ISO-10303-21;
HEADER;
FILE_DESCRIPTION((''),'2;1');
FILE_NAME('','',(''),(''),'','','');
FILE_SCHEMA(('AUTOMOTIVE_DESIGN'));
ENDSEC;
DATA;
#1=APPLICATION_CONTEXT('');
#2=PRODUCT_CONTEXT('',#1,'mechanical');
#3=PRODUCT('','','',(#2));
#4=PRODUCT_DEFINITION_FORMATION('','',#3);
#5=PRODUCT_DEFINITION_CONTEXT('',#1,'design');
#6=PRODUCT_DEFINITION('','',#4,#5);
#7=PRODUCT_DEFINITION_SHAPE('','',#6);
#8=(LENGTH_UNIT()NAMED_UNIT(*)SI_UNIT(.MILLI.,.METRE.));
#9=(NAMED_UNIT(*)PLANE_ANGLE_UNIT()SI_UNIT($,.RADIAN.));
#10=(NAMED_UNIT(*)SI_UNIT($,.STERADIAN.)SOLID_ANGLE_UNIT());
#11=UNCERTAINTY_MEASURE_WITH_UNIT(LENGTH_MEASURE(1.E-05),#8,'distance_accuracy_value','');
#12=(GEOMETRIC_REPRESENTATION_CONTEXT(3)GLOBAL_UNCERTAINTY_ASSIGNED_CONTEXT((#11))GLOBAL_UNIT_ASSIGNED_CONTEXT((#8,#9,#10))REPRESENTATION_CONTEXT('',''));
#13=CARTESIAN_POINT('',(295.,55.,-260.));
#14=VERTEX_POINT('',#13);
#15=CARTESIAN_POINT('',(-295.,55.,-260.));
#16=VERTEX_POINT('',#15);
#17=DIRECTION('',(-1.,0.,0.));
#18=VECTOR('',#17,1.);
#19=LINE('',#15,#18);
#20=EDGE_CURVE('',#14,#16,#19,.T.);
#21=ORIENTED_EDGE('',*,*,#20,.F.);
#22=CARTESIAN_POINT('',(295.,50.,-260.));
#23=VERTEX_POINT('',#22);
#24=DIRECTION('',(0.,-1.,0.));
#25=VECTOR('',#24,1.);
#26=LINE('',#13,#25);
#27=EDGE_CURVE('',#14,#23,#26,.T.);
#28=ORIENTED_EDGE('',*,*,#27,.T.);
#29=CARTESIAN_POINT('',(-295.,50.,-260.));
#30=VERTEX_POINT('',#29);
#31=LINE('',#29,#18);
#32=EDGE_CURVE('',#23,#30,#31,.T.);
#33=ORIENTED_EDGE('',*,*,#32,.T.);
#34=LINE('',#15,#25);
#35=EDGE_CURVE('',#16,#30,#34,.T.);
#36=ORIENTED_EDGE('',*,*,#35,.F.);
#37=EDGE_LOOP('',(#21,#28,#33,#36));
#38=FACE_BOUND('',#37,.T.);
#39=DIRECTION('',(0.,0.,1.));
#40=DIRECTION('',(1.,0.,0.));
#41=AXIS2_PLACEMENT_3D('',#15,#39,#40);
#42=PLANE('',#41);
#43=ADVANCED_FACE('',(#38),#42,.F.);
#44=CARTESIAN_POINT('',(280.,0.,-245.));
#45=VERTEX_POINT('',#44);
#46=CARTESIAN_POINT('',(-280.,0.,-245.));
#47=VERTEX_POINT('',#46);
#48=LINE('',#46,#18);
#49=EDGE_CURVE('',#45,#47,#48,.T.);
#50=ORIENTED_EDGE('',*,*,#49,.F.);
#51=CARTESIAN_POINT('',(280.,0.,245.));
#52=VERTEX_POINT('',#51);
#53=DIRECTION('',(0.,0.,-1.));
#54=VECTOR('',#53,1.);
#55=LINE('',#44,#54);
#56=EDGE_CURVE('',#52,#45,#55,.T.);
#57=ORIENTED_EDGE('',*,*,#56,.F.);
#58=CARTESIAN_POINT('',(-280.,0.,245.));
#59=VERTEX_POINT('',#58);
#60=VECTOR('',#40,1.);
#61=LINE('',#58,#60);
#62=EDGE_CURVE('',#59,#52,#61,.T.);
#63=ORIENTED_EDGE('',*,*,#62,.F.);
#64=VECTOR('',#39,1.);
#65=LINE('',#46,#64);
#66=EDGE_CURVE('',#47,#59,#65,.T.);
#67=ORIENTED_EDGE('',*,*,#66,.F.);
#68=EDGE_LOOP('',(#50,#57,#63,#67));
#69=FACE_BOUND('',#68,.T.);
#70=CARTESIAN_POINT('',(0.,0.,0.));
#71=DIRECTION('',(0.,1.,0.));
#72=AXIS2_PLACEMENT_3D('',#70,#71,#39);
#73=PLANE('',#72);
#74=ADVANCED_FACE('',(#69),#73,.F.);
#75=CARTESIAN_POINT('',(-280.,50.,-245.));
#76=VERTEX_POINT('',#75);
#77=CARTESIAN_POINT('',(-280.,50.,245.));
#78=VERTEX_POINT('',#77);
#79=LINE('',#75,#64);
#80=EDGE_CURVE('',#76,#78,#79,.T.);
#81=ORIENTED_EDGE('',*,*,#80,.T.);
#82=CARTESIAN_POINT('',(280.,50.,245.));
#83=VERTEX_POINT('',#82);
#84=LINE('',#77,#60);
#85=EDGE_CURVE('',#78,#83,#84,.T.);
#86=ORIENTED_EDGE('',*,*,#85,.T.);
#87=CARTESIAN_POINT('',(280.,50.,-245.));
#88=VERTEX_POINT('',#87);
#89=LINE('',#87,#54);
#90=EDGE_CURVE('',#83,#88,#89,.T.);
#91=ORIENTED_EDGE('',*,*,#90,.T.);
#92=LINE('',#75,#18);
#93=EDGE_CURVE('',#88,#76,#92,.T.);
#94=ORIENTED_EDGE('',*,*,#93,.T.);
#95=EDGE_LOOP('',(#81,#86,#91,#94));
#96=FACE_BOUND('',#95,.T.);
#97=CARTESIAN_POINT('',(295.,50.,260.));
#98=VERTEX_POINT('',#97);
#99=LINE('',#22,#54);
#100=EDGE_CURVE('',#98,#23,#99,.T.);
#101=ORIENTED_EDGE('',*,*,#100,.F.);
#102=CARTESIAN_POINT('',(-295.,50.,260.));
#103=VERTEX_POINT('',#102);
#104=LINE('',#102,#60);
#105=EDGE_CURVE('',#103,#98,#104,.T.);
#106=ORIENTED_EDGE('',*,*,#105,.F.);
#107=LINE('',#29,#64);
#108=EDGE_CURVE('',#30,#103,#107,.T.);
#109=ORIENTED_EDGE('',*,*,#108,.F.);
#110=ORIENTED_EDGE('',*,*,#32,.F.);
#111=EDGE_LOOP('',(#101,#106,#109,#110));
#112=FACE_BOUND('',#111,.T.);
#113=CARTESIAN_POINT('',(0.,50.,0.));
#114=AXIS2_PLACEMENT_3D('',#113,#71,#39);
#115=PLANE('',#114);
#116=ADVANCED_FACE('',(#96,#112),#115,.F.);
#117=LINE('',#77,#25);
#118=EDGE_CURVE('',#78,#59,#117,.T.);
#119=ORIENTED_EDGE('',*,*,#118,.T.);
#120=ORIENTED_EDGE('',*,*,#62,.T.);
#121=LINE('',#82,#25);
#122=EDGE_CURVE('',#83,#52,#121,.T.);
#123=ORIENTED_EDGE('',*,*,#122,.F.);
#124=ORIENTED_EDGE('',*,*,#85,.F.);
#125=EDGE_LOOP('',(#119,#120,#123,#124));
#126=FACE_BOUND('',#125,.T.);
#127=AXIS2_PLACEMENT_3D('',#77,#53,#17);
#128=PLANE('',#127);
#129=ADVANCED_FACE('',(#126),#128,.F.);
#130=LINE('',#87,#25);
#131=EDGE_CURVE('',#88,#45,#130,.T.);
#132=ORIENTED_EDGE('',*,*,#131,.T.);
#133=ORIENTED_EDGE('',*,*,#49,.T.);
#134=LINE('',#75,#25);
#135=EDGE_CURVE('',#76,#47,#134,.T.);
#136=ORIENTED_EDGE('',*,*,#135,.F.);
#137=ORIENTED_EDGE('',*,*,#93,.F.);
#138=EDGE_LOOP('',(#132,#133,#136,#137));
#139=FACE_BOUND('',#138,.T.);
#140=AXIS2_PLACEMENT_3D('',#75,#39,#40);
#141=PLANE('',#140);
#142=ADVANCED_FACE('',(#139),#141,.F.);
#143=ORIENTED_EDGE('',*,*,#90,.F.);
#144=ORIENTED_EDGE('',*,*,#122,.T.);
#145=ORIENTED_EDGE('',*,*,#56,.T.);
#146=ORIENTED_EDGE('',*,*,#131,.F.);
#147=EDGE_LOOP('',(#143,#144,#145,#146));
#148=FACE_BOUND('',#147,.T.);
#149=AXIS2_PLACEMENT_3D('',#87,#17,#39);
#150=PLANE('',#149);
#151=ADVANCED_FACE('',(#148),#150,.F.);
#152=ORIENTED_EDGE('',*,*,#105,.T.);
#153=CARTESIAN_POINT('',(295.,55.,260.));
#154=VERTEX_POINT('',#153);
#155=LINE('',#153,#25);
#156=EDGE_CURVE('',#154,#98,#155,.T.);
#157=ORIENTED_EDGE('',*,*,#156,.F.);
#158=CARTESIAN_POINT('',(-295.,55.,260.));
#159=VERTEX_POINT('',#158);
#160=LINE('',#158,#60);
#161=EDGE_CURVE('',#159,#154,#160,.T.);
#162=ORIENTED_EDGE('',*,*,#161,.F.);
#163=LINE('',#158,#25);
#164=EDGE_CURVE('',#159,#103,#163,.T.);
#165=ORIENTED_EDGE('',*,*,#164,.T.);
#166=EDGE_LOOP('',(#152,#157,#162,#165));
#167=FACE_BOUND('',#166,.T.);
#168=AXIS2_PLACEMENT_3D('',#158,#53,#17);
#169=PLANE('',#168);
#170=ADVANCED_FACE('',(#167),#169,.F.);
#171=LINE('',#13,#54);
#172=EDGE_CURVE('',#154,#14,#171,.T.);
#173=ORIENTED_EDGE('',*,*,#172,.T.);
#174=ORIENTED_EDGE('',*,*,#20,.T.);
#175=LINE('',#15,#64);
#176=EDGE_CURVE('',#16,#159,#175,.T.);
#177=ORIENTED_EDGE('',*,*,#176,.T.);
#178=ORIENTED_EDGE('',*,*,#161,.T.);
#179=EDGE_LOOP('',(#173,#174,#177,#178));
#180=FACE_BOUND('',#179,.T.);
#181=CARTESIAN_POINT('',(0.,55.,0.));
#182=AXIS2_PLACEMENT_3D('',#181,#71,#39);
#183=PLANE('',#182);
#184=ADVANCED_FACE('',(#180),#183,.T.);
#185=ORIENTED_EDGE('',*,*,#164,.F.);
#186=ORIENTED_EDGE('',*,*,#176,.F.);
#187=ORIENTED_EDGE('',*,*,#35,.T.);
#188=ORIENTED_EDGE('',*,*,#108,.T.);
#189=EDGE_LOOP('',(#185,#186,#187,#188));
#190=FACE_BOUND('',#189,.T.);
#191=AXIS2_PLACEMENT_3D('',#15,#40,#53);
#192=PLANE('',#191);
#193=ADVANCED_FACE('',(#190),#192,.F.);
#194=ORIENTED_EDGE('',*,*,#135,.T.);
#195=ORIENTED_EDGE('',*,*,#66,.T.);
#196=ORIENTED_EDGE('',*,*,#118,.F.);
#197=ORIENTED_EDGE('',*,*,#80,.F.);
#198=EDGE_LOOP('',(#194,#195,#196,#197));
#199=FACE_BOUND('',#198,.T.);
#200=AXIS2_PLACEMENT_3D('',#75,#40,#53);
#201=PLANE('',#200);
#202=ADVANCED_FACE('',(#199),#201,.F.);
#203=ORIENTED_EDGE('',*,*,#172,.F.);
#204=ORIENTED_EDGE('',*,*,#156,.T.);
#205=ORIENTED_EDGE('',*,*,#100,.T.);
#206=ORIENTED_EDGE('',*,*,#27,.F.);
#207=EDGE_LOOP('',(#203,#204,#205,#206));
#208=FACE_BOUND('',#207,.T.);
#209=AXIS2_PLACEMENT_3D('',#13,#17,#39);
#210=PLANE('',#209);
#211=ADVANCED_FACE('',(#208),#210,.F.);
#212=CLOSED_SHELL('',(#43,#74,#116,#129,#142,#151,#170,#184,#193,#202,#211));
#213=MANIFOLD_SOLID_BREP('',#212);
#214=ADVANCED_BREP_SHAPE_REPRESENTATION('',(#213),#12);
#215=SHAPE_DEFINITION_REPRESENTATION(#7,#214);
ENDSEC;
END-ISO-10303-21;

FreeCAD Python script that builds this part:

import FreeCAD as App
import Part
import Sketcher

doc = App.newDocument("Part")
body = doc.addObject("PartDesign::Body", "Body")

# Sketch on XZ plane
sketch1 = doc.addObject("Sketcher::SketchObject", "Sketch")
body.addObject(sketch1)
sketch1.AttachmentSupport = (doc.XZ_Plane, [""])
sketch1.MapMode = "FlatFace"
sketch1.addGeometry([
    Part.LineSegment(App.Vector(-280, -245, 0), App.Vector(-280, 245, 0)),
    Part.LineSegment(App.Vector(-280, 245, 0), App.Vector(280, 245, 0)),
    Part.LineSegment(App.Vector(280, 245, 0), App.Vector(280, -245, 0)),
    Part.LineSegment(App.Vector(280, -245, 0), App.Vector(-280, -245, 0)),
], False)
sketch1.addConstraint([
    Sketcher.Constraint("Coincident", 0, 2, 1, 1),
    Sketcher.Constraint("Coincident", 1, 2, 2, 1),
    Sketcher.Constraint("Coincident", 2, 2, 3, 1),
    Sketcher.Constraint("Coincident", 3, 2, 0, 1),
    Sketcher.Constraint("Vertical", 0),
    Sketcher.Constraint("Horizontal", 1),
    Sketcher.Constraint("Vertical", 2),
    Sketcher.Constraint("Horizontal", 3),
    Sketcher.Constraint("Symmetric", 0, 2, 2, 2, -1, 1),
    Sketcher.Constraint("DistanceX", 1, 1, 1, 2, 560.0),
    Sketcher.Constraint("DistanceY", 0, 1, 0, 2, 490.0),
])
pad1 = doc.addObject("PartDesign::Pad", "Pad")
body.addObject(pad1)
pad1.Profile = sketch1
pad1.Length = 50
pad1.Reversed = True

# Sketch on XZ plane
sketch2 = doc.addObject("Sketcher::SketchObject", "Sketch001")
body.addObject(sketch2)
sketch2.AttachmentSupport = (doc.XZ_Plane, [""])
sketch2.MapMode = "FlatFace"
sketch2.AttachmentOffset = App.Placement(App.Vector(0, 0, -50), App.Rotation())
sketch2.addGeometry([
    Part.LineSegment(App.Vector(-295, -260, 0), App.Vector(-295, 260, 0)),
    Part.LineSegment(App.Vector(-295, 260, 0), App.Vector(295, 260, 0)),
    Part.LineSegment(App.Vector(295, 260, 0), App.Vector(295, -260, 0)),
    Part.LineSegment(App.Vector(295, -260, 0), App.Vector(-295, -260, 0)),
], False)
sketch2.addConstraint([
    Sketcher.Constraint("Coincident", 0, 2, 1, 1),
    Sketcher.Constraint("Coincident", 1, 2, 2, 1),
    Sketcher.Constraint("Coincident", 2, 2, 3, 1),
    Sketcher.Constraint("Coincident", 3, 2, 0, 1),
    Sketcher.Constraint("Vertical", 0),
    Sketcher.Constraint("Horizontal", 1),
    Sketcher.Constraint("Vertical", 2),
    Sketcher.Constraint("Horizontal", 3),
    Sketcher.Constraint("Symmetric", 0, 2, 2, 2, -1, 1),
    Sketcher.Constraint("DistanceX", 1, 1, 1, 2, 590.0),
    Sketcher.Constraint("DistanceY", 0, 1, 0, 2, 520.0),
])
pad2 = doc.addObject("PartDesign::Pad", "Pad001")
body.addObject(pad2)
pad2.Profile = sketch2
pad2.Length = 5
pad2.Reversed = True

doc.recompute()
